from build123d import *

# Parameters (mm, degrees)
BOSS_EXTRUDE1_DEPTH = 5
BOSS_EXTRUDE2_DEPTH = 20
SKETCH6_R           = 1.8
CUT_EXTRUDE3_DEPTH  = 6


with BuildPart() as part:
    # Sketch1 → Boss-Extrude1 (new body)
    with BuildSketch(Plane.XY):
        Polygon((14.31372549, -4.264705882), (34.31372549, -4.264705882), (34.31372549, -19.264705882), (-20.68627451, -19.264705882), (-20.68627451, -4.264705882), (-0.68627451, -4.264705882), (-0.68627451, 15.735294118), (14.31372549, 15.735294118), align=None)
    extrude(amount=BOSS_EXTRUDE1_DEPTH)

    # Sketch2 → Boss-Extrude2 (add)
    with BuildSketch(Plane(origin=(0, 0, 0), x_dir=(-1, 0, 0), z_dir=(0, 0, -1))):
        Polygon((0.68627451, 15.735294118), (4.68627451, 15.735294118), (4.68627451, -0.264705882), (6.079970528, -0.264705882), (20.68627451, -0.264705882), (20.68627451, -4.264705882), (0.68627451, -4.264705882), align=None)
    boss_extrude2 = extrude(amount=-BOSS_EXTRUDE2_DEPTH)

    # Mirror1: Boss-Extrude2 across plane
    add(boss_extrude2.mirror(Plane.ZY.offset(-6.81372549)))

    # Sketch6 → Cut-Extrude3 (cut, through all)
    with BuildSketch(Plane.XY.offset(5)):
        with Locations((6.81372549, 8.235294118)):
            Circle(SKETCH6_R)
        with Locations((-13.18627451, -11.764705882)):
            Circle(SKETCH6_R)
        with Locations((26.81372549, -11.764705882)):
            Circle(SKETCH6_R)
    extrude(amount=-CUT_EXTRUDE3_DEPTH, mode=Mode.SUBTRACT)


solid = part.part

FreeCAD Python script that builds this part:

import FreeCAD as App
import Part
import Sketcher

V = App.Vector


def add_polygon(sketch, points):
    """Adds a closed chain of lines whose ends are joined by coincident constraints."""
    first, n = sketch.GeometryCount, len(points)
    for a, b in zip(points, points[1:] + points[:1]):
        sketch.addGeometry(Part.LineSegment(App.Vector(*a, 0), App.Vector(*b, 0)), False)
    for i in range(n):
        sketch.addConstraint(Sketcher.Constraint("Coincident", first + i, 2, first + (i + 1) % n, 1))

doc = App.newDocument("Part")
body = doc.addObject("PartDesign::Body", "Body")

# Sketch on XY plane
sketch1 = body.newObject("Sketcher::SketchObject", "Sketch")
sketch1.AttachmentSupport = (doc.getObject("XY_Plane"), [""])
sketch1.MapMode = "FlatFace"
add_polygon(sketch1, [(34, -4), (14, -4), (14, 16), (-1, 16), (-1, -4), (-21, -4), (-21, -19), (34, -19)])  # lines 0-7
sketch1.addConstraint([
    Sketcher.Constraint("Horizontal", 0),
    Sketcher.Constraint("Vertical", 1),
    Sketcher.Constraint("Horizontal", 2),
    Sketcher.Constraint("Vertical", 3),
    Sketcher.Constraint("Horizontal", 4),
    Sketcher.Constraint("Vertical", 5),
    Sketcher.Constraint("Horizontal", 6),
    Sketcher.Constraint("Vertical", 7),
    Sketcher.Constraint("Horizontal", 0, 2, 3, 2),
    Sketcher.Constraint("Equal", 0, 4),
    Sketcher.Constraint("Equal", 4, 1),
    Sketcher.Constraint("Equal", 2, 5),
    Sketcher.Constraint("DistanceX", 0, 2, 0, 1, 20.0),
    Sketcher.Constraint("DistanceX", 2, 2, 2, 1, 15.0),
    Sketcher.Constraint("DistanceX", -1, 1, 0, 2, 14.313725),
    Sketcher.Constraint("DistanceY", 0, 2, -1, 1, 4.264706),
])
pad1 = body.newObject("PartDesign::Pad", "Pad")
pad1.Profile = sketch1
pad1.Length = 5

# Sketch on XY plane
sketch2 = body.newObject("Sketcher::SketchObject", "Sketch001")
sketch2.AttachmentSupport = (doc.getObject("XY_Plane"), [""])
sketch2.MapMode = "FlatFace"
add_polygon(sketch2, [(-4.7, 15.7), (-0.7, 15.7), (-0.7, -4.3), (-20.7, -4.3), (-20.7, -0.3), (-4.7, -0.3)])  # lines 0-5
sketch2.addConstraint([
    Sketcher.Constraint("Horizontal", 0),
    Sketcher.Constraint("Vertical", 1),
    Sketcher.Constraint("Horizontal", 2),
    Sketcher.Constraint("Vertical", 3),
    Sketcher.Constraint("Horizontal", 4),
    Sketcher.Constraint("Vertical", 5),
    Sketcher.Constraint("Equal", 2, 1),
    Sketcher.Constraint("Equal", 0, 3),
    Sketcher.Constraint("DistanceX", 0, 1, 0, 2, 4.0),
    Sketcher.Constraint("DistanceX", 2, 2, 2, 1, 20.0),
    Sketcher.Constraint("DistanceX", 0, 2, -1, 1, 0.686275),
    Sketcher.Constraint("DistanceY", -1, 1, 0, 2, 15.735294),
])
pad2 = body.newObject("PartDesign::Pad", "Pad001")
pad2.Profile = sketch2
pad2.Length = 20
doc.recompute()

datumplane = body.newObject("PartDesign::Plane", "DatumPlane")
datumplane.AttachmentSupport = (doc.getObject("YZ_Plane"), [""])
datumplane.MapMode = "FlatFace"
datumplane.AttachmentOffset = App.Placement(V(0, 0, 6.813725), App.Rotation())
mirrored = body.newObject("PartDesign::Mirrored", "Mirrored")
mirrored.Originals = [pad2]
mirrored.MirrorPlane = (datumplane, [""])
body.Tip = mirrored

# Sketch on XY plane
sketch3 = body.newObject("Sketcher::SketchObject", "Sketch002")
sketch3.AttachmentSupport = (doc.getObject("XY_Plane"), [""])
sketch3.MapMode = "FlatFace"
sketch3.AttachmentOffset = App.Placement(V(0, 0, 5), App.Rotation())
sketch3.addGeometry([
    Part.Circle(V(6.8, 8.2, 0), V(0, 0, 1), 1.8),
    Part.Circle(V(-13.2, -11.8, 0), V(0, 0, 1), 1.8),
    Part.Circle(V(26.8, -11.8, 0), V(0, 0, 1), 1.8),
], False)
sketch3.addConstraint([
    Sketcher.Constraint("Equal", 0, 1),
    Sketcher.Constraint("Equal", 1, 2),
    Sketcher.Constraint("Horizontal", 1, 3, 2, 3),
    Sketcher.Constraint("Diameter", 0, 3.6),
    Sketcher.Constraint("DistanceX", 1, 3, 0, 3, 20.0),
    Sketcher.Constraint("DistanceY", 1, 3, 0, 3, 20.0),
    Sketcher.Constraint("DistanceX", 0, 3, 2, 3, 20.0),
    Sketcher.Constraint("DistanceX", -1, 1, 0, 3, 6.813725),
    Sketcher.Constraint("DistanceY", -1, 1, 0, 3, 8.235294),
])
pocket1 = body.newObject("PartDesign::Pocket", "Pocket")
pocket1.Profile = sketch3
pocket1.Type = "ThroughAll"

doc.recompute()
